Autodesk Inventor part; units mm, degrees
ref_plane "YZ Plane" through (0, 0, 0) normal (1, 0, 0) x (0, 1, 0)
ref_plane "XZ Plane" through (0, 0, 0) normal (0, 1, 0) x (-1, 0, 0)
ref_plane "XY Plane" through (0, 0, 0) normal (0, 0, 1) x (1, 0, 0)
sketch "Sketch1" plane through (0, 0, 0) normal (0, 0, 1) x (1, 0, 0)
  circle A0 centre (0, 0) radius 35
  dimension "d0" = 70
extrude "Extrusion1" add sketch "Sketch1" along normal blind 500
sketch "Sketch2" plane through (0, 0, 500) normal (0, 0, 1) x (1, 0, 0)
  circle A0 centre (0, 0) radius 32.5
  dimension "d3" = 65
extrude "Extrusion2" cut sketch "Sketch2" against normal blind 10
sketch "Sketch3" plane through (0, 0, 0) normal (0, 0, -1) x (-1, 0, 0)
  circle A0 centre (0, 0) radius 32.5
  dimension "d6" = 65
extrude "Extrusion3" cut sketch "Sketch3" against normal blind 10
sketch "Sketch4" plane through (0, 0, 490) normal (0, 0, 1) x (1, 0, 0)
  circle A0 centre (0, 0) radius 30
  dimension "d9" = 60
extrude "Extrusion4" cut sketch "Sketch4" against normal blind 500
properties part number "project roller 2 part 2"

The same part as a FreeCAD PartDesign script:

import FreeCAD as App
import Part
import Sketcher
from FreeCAD import Vector

doc = App.newDocument("Part")
body = doc.addObject("PartDesign::Body", "Body")

# Sketch on XY plane
sketch1 = doc.addObject("Sketcher::SketchObject", "Sketch")
body.addObject(sketch1)
sketch1.AttachmentSupport = (doc.XY_Plane, [""])
sketch1.MapMode = "FlatFace"
sketch1.addGeometry(Part.Circle(Vector(0, 0, 0), Vector(0, 0, 1), 35), False)
sketch1.addConstraint([
    Sketcher.Constraint("Coincident", 0, 3, -1, 1),
    Sketcher.Constraint("Diameter", 0, 70.0),
])
pad1 = doc.addObject("PartDesign::Pad", "Pad")
body.addObject(pad1)
pad1.Profile = sketch1
pad1.Length = 500

# Sketch on XY plane
sketch2 = doc.addObject("Sketcher::SketchObject", "Sketch001")
body.addObject(sketch2)
sketch2.AttachmentSupport = (doc.XY_Plane, [""])
sketch2.MapMode = "FlatFace"
sketch2.AttachmentOffset = App.Placement(Vector(0, 0, 500), App.Rotation())
sketch2.addGeometry(Part.Circle(Vector(0, 0, 0), Vector(0, 0, 1), 32.5), False)
sketch2.addConstraint([
    Sketcher.Constraint("Coincident", 0, 3, -1, 1),
    Sketcher.Constraint("Diameter", 0, 65.0),
])
pocket1 = doc.addObject("PartDesign::Pocket", "Pocket")
body.addObject(pocket1)
pocket1.Profile = sketch2
pocket1.Length = 10

# Sketch on XY plane
sketch3 = doc.addObject("Sketcher::SketchObject", "Sketch002")
body.addObject(sketch3)
sketch3.AttachmentSupport = (doc.XY_Plane, [""])
sketch3.MapMode = "FlatFace"
sketch3.addGeometry(Part.Circle(Vector(0, 0, 0), Vector(0, 0, 1), 32.5), False)
sketch3.addConstraint([
    Sketcher.Constraint("Coincident", 0, 3, -1, 1),
    Sketcher.Constraint("Diameter", 0, 65.0),
])
pocket2 = doc.addObject("PartDesign::Pocket", "Pocket001")
body.addObject(pocket2)
pocket2.Profile = sketch3
pocket2.Length = 10
pocket2.Reversed = True

# Sketch on XY plane
sketch4 = doc.addObject("Sketcher::SketchObject", "Sketch003")
body.addObject(sketch4)
sketch4.AttachmentSupport = (doc.XY_Plane, [""])
sketch4.MapMode = "FlatFace"
sketch4.AttachmentOffset = App.Placement(Vector(0, 0, 490), App.Rotation())
sketch4.addGeometry(Part.Circle(Vector(0, 0, 0), Vector(0, 0, 1), 30), False)
sketch4.addConstraint([
    Sketcher.Constraint("Coincident", 0, 3, -1, 1),
    Sketcher.Constraint("Diameter", 0, 60.0),
])
pocket3 = doc.addObject("PartDesign::Pocket", "Pocket002")
body.addObject(pocket3)
pocket3.Profile = sketch4
pocket3.Length = 500

doc.recompute()
